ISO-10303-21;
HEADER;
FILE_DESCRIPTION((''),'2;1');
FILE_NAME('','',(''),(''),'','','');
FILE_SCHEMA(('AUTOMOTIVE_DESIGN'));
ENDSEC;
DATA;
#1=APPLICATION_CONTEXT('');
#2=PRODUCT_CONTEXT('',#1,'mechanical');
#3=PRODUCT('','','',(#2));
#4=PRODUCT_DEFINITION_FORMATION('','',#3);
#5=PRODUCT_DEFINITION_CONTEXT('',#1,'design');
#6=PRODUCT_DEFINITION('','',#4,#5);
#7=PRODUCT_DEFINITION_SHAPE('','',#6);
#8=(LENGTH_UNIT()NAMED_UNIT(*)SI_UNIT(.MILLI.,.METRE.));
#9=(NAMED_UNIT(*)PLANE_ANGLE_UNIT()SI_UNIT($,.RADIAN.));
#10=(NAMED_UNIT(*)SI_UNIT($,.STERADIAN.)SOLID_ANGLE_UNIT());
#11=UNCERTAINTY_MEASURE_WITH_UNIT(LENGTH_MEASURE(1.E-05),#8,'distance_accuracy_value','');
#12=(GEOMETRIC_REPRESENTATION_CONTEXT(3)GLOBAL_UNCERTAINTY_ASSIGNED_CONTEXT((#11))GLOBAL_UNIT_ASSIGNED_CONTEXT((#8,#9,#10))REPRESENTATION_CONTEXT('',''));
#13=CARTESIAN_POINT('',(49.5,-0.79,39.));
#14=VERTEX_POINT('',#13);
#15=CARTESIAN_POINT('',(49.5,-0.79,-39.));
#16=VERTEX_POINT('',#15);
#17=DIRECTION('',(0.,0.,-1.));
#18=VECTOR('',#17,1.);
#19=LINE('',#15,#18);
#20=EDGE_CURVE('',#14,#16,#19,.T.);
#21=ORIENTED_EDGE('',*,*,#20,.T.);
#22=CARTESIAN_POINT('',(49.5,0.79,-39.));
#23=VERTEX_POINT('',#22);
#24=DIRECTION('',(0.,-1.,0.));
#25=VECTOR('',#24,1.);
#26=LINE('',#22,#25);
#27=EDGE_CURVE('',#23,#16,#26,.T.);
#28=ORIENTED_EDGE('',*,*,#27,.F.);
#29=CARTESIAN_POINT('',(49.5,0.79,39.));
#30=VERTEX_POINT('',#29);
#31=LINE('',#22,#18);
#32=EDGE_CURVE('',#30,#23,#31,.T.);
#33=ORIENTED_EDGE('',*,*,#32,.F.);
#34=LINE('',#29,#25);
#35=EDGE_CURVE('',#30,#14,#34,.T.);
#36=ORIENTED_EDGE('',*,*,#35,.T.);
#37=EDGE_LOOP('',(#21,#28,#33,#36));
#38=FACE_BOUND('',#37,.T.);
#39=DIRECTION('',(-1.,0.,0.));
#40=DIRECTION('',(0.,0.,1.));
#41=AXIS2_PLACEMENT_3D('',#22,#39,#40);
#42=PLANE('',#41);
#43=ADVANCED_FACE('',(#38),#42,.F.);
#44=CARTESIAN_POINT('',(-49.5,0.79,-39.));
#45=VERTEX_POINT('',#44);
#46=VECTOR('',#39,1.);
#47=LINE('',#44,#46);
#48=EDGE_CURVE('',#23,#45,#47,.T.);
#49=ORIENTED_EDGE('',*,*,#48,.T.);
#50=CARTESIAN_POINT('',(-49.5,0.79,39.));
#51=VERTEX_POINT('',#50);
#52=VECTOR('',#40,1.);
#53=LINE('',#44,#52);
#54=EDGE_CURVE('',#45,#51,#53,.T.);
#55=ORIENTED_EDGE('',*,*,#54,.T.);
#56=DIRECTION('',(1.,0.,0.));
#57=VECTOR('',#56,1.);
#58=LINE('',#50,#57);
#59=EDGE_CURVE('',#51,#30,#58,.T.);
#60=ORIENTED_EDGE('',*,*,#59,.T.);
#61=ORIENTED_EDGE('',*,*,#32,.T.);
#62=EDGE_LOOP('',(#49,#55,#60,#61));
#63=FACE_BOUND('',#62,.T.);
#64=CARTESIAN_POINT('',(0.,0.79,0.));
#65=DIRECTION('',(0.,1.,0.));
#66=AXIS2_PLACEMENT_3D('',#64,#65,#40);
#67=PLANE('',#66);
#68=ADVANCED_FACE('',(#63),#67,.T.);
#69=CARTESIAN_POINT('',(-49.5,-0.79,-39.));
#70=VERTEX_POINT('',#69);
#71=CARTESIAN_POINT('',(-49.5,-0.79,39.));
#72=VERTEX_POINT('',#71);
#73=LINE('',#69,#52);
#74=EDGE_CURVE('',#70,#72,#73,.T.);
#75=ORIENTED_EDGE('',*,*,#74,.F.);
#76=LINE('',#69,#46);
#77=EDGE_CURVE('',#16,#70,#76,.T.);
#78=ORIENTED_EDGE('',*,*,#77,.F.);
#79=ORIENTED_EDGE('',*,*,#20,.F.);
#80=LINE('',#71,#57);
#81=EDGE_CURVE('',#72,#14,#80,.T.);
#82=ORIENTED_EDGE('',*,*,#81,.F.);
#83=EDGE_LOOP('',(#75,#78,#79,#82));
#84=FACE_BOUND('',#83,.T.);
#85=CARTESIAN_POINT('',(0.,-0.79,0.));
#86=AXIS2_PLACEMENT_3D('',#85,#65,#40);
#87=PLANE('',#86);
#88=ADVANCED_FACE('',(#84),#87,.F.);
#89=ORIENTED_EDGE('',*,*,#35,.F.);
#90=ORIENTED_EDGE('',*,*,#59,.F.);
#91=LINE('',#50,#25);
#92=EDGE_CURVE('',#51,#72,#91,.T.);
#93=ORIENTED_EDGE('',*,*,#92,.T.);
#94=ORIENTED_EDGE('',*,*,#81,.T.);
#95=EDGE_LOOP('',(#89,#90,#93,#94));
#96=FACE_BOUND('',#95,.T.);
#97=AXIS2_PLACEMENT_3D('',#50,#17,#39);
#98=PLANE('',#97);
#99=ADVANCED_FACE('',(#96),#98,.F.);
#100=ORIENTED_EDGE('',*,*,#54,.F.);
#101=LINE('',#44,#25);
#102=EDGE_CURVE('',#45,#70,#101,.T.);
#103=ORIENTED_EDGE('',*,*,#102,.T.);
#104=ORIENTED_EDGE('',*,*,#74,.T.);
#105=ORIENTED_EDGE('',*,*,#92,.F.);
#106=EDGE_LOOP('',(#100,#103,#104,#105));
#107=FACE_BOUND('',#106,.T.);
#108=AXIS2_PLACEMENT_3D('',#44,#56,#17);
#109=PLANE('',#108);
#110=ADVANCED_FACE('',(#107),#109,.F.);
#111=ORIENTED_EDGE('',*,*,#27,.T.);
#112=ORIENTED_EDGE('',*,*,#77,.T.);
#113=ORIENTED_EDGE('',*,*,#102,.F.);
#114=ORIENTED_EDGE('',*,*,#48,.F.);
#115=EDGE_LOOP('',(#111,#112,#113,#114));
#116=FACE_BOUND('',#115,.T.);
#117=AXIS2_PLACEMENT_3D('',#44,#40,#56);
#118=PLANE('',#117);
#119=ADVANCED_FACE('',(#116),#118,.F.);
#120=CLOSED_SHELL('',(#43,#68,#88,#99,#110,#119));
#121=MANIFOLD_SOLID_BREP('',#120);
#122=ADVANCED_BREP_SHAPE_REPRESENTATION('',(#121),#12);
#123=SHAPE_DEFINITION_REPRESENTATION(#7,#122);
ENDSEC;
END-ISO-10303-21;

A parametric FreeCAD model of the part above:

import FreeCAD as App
import Part
import Sketcher
from FreeCAD import Vector

doc = App.newDocument("Part")
body = doc.addObject("PartDesign::Body", "Body")

# Sketch on XZ plane
sketch1 = body.newObject("Sketcher::SketchObject", "Sketch")
sketch1.AttachmentSupport = (doc.getObject("XZ_Plane"), [""])
sketch1.MapMode = "FlatFace"
sketch1.addGeometry([
    Part.LineSegment(Vector(-49.5, -39, 0), Vector(-49.5, 39, 0)),
    Part.LineSegment(Vector(-49.5, 39, 0), Vector(49.5, 39, 0)),
    Part.LineSegment(Vector(49.5, 39, 0), Vector(49.5, -39, 0)),
    Part.LineSegment(Vector(49.5, -39, 0), Vector(-49.5, -39, 0)),
], False)
sketch1.addConstraint([
    Sketcher.Constraint("Coincident", 0, 2, 1, 1),
    Sketcher.Constraint("Coincident", 1, 2, 2, 1),
    Sketcher.Constraint("Coincident", 2, 2, 3, 1),
    Sketcher.Constraint("Coincident", 3, 2, 0, 1),
    Sketcher.Constraint("Vertical", 0),
    Sketcher.Constraint("Horizontal", 1),
    Sketcher.Constraint("Vertical", 2),
    Sketcher.Constraint("Horizontal", 3),
    Sketcher.Constraint("Symmetric", 0, 2, 2, 2, -1, 1),
    Sketcher.Constraint("DistanceX", 1, 1, 1, 2, 99.0),
    Sketcher.Constraint("DistanceY", 0, 1, 0, 2, 78.0),
])
pad1 = body.newObject("PartDesign::Pad", "Pad")
pad1.Profile = sketch1
pad1.Length = 1.58
pad1.Midplane = True

doc.recompute()
